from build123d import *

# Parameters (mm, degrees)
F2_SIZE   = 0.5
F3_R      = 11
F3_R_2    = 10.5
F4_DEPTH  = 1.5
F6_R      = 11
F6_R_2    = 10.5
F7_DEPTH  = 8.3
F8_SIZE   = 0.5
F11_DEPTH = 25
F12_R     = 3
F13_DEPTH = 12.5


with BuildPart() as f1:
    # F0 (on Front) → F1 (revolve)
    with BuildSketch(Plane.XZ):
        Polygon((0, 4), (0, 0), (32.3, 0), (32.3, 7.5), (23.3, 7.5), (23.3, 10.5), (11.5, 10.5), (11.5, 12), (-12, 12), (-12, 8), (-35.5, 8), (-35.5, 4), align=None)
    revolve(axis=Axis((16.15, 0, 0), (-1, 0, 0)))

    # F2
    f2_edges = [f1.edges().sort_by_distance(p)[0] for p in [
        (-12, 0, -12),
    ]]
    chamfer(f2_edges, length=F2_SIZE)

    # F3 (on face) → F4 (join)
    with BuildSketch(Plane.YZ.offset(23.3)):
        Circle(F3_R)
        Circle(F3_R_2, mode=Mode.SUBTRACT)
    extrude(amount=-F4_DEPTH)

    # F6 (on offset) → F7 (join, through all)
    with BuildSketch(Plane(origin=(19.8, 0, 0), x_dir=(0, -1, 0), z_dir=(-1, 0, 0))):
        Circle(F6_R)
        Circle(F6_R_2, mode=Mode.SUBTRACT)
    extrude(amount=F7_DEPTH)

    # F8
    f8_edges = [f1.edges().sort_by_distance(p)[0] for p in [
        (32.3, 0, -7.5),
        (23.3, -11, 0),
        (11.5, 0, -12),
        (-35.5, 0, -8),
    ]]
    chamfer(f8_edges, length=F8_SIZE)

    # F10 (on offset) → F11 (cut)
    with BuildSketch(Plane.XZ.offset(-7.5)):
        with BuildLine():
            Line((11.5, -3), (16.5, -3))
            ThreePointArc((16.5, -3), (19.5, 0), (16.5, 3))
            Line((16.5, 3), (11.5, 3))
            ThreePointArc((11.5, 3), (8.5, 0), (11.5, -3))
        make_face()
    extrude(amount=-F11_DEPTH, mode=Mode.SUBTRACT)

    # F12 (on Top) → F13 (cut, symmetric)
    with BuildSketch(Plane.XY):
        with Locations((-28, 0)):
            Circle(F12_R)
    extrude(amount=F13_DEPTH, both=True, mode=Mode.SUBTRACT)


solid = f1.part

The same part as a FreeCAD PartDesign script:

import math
import FreeCAD as App
import Part
import Sketcher

V = App.Vector


def edges_at(feature, points):
    """Names of the edges that pass closest to the given points."""
    edges = feature.Shape.Edges
    near = lambda p: min(range(len(edges)), key=lambda i: edges[i].distToShape(Part.Vertex(*p))[0])
    return sorted({f"Edge{near(p) + 1}" for p in points})


def add_polygon(sketch, points):
    """Adds a closed chain of lines whose ends are joined by coincident constraints."""
    first, n = sketch.GeometryCount, len(points)
    for a, b in zip(points, points[1:] + points[:1]):
        sketch.addGeometry(Part.LineSegment(App.Vector(*a, 0), App.Vector(*b, 0)), False)
    for i in range(n):
        sketch.addConstraint(Sketcher.Constraint("Coincident", first + i, 2, first + (i + 1) % n, 1))

doc = App.newDocument("Part")
body = doc.addObject("PartDesign::Body", "Body")

sketch1 = doc.addObject("Sketcher::SketchObject", "Sketch")
body.addObject(sketch1)
sketch1.AttachmentSupport = (doc.XZ_Plane, [""])
sketch1.MapMode = "FlatFace"
add_polygon(sketch1, [(0, 4), (0, 0), (32.3, 0), (32.3, 7.5), (23.3, 7.5), (23.3, 10.5), (11.5, 10.5), (11.5, 12), (-12, 12), (-12, 8), (-35.5, 8), (-35.5, 4)])
sketch1.addConstraint([
    Sketcher.Constraint("Vertical", 0),
    Sketcher.Constraint("Horizontal", 1),
    Sketcher.Constraint("Vertical", 2),
    Sketcher.Constraint("Horizontal", 3),
    Sketcher.Constraint("Vertical", 4),
    Sketcher.Constraint("Horizontal", 5),
    Sketcher.Constraint("Vertical", 6),
    Sketcher.Constraint("Horizontal", 7),
    Sketcher.Constraint("Vertical", 8),
    Sketcher.Constraint("Horizontal", 9),
    Sketcher.Constraint("Vertical", 10),
    Sketcher.Constraint("Horizontal", 11),
    Sketcher.Constraint("Coincident", 0, 2, -1, 1),
    Sketcher.Constraint("Equal", 7, 9),
    Sketcher.Constraint("Equal", 0, 8),
    Sketcher.Constraint("Equal", 8, 10),
    Sketcher.Constraint("DistanceX", 3, 2, 3, 1, 9.0),
    Sketcher.Constraint("DistanceY", 0, 2, 0, 1, 4.0),
    Sketcher.Constraint("DistanceY", 4, 1, 4, 2, 3.0),
    Sketcher.Constraint("DistanceX", 1, 1, 1, 2, 32.3),
    Sketcher.Constraint("DistanceX", 5, 2, 5, 1, 11.8),
    Sketcher.Constraint("DistanceX", 7, 2, 7, 1, 23.5),
    Sketcher.Constraint("DistanceY", 2, 1, 2, 2, 7.5),
])
revolution = doc.addObject("PartDesign::Revolution", "Revolution")
body.addObject(revolution)
revolution.Profile = sketch1
revolution.ReferenceAxis = (sketch1, ["H_Axis"])
revolution.Angle = 360
doc.recompute()

chamfer = doc.addObject("PartDesign::Chamfer", "Chamfer")
body.addObject(chamfer)
chamfer.Base = (revolution, edges_at(revolution, [(-12, 0, -12)]))
chamfer.Size = 0.5

sketch2 = doc.addObject("Sketcher::SketchObject", "Sketch001")
body.addObject(sketch2)
sketch2.AttachmentSupport = (doc.YZ_Plane, [""])
sketch2.MapMode = "FlatFace"
sketch2.AttachmentOffset = App.Placement(V(0, 0, 23.3), App.Rotation())
sketch2.addGeometry([
    Part.Circle(V(0, 0, 0), V(0, 0, 1), 11),
    Part.Circle(V(0, 0, 0), V(0, 0, 1), 10),
], False)
sketch2.addConstraint([
    Sketcher.Constraint("Coincident", 0, 3, -1, 1),
    Sketcher.Constraint("Coincident", 1, 3, -1, 1),
    Sketcher.Constraint("Diameter", 0, 22.0),
    Sketcher.Constraint("Diameter", 1, 21.0),
])
pad1 = doc.addObject("PartDesign::Pad", "Pad")
body.addObject(pad1)
pad1.Profile = sketch2
pad1.Length = 1.5
pad1.Reversed = True

sketch3 = doc.addObject("Sketcher::SketchObject", "Sketch002")
body.addObject(sketch3)
sketch3.AttachmentSupport = (doc.YZ_Plane, [""])
sketch3.MapMode = "FlatFace"
sketch3.AttachmentOffset = App.Placement(V(0, 0, 19.8), App.Rotation())
sketch3.addGeometry([
    Part.Circle(V(0, 0, 0), V(0, 0, 1), 11),
    Part.Circle(V(0, 0, 0), V(0, 0, 1), 10),
], False)
sketch3.addConstraint([
    Sketcher.Constraint("Coincident", 0, 3, -1, 1),
    Sketcher.Constraint("Coincident", 1, 3, -1, 1),
    Sketcher.Constraint("Diameter", 0, 22.0),
    Sketcher.Constraint("Diameter", 1, 21.0),
])
pad2 = doc.addObject("PartDesign::Pad", "Pad001")
body.addObject(pad2)
pad2.Profile = sketch3
pad2.Type = "UpToLast"
pad2.Reversed = True
doc.recompute()

chamfer2 = doc.addObject("PartDesign::Chamfer", "Chamfer001")
body.addObject(chamfer2)
chamfer2.Base = (pad2, edges_at(pad2, [
    (32.3, 0, -7.5),
    (23.3, -11, 0),
    (11.5, 0, -12),
    (-35.5, 0, -8),
]))
chamfer2.Size = 0.5

sketch4 = doc.addObject("Sketcher::SketchObject", "Sketch003")
body.addObject(sketch4)
sketch4.AttachmentSupport = (doc.XZ_Plane, [""])
sketch4.MapMode = "FlatFace"
sketch4.AttachmentOffset = App.Placement(V(0, 0, -7.5), App.Rotation())
sketch4.addGeometry([
    Part.LineSegment(V(11.5, -3, 0), V(16.5, -3, 0)),
    Part.ArcOfCircle(Part.Circle(V(16.5, 0, 0), V(0, 0, 1), 3), math.radians(-90), math.radians(90)),
    Part.LineSegment(V(16.5, 3, 0), V(11.5, 3, 0)),
    Part.ArcOfCircle(Part.Circle(V(11.5, 0, 0), V(0, 0, 1), 3), math.radians(90), math.radians(270)),
], False)
sketch4.addConstraint([
    Sketcher.Constraint("Tangent", 0, 2, 1, 1),
    Sketcher.Constraint("Tangent", 1, 2, 2, 1),
    Sketcher.Constraint("Tangent", 2, 2, 3, 1),
    Sketcher.Constraint("Tangent", 3, 2, 0, 1),
    Sketcher.Constraint("Horizontal", 0),
    Sketcher.Constraint("Horizontal", 2),
    Sketcher.Constraint("PointOnObject", 1, 3, -1),
    Sketcher.Constraint("Radius", 1, 3.0),
    Sketcher.Constraint("DistanceX", 0, 1, 0, 2, 5.0),
    Sketcher.Constraint("DistanceX", -1, 1, 1, 3, 16.5),
])
pocket1 = doc.addObject("PartDesign::Pocket", "Pocket")
body.addObject(pocket1)
pocket1.Profile = sketch4
pocket1.Length = 25

sketch5 = doc.addObject("Sketcher::SketchObject", "Sketch004")
body.addObject(sketch5)
sketch5.AttachmentSupport = (doc.XY_Plane, [""])
sketch5.MapMode = "FlatFace"
sketch5.addGeometry(Part.Circle(V(-28, 0, 0), V(0, 0, 1), 3), False)
sketch5.addConstraint([
    Sketcher.Constraint("PointOnObject", 0, 3, -1),
    Sketcher.Constraint("Diameter", 0, 6.0),
    Sketcher.Constraint("DistanceX", 0, 3, -1, 1, 28.0),
])
pocket2 = doc.addObject("PartDesign::Pocket", "Pocket001")
body.addObject(pocket2)
pocket2.Profile = sketch5
pocket2.Length = 25
pocket2.Midplane = True

doc.recompute()
